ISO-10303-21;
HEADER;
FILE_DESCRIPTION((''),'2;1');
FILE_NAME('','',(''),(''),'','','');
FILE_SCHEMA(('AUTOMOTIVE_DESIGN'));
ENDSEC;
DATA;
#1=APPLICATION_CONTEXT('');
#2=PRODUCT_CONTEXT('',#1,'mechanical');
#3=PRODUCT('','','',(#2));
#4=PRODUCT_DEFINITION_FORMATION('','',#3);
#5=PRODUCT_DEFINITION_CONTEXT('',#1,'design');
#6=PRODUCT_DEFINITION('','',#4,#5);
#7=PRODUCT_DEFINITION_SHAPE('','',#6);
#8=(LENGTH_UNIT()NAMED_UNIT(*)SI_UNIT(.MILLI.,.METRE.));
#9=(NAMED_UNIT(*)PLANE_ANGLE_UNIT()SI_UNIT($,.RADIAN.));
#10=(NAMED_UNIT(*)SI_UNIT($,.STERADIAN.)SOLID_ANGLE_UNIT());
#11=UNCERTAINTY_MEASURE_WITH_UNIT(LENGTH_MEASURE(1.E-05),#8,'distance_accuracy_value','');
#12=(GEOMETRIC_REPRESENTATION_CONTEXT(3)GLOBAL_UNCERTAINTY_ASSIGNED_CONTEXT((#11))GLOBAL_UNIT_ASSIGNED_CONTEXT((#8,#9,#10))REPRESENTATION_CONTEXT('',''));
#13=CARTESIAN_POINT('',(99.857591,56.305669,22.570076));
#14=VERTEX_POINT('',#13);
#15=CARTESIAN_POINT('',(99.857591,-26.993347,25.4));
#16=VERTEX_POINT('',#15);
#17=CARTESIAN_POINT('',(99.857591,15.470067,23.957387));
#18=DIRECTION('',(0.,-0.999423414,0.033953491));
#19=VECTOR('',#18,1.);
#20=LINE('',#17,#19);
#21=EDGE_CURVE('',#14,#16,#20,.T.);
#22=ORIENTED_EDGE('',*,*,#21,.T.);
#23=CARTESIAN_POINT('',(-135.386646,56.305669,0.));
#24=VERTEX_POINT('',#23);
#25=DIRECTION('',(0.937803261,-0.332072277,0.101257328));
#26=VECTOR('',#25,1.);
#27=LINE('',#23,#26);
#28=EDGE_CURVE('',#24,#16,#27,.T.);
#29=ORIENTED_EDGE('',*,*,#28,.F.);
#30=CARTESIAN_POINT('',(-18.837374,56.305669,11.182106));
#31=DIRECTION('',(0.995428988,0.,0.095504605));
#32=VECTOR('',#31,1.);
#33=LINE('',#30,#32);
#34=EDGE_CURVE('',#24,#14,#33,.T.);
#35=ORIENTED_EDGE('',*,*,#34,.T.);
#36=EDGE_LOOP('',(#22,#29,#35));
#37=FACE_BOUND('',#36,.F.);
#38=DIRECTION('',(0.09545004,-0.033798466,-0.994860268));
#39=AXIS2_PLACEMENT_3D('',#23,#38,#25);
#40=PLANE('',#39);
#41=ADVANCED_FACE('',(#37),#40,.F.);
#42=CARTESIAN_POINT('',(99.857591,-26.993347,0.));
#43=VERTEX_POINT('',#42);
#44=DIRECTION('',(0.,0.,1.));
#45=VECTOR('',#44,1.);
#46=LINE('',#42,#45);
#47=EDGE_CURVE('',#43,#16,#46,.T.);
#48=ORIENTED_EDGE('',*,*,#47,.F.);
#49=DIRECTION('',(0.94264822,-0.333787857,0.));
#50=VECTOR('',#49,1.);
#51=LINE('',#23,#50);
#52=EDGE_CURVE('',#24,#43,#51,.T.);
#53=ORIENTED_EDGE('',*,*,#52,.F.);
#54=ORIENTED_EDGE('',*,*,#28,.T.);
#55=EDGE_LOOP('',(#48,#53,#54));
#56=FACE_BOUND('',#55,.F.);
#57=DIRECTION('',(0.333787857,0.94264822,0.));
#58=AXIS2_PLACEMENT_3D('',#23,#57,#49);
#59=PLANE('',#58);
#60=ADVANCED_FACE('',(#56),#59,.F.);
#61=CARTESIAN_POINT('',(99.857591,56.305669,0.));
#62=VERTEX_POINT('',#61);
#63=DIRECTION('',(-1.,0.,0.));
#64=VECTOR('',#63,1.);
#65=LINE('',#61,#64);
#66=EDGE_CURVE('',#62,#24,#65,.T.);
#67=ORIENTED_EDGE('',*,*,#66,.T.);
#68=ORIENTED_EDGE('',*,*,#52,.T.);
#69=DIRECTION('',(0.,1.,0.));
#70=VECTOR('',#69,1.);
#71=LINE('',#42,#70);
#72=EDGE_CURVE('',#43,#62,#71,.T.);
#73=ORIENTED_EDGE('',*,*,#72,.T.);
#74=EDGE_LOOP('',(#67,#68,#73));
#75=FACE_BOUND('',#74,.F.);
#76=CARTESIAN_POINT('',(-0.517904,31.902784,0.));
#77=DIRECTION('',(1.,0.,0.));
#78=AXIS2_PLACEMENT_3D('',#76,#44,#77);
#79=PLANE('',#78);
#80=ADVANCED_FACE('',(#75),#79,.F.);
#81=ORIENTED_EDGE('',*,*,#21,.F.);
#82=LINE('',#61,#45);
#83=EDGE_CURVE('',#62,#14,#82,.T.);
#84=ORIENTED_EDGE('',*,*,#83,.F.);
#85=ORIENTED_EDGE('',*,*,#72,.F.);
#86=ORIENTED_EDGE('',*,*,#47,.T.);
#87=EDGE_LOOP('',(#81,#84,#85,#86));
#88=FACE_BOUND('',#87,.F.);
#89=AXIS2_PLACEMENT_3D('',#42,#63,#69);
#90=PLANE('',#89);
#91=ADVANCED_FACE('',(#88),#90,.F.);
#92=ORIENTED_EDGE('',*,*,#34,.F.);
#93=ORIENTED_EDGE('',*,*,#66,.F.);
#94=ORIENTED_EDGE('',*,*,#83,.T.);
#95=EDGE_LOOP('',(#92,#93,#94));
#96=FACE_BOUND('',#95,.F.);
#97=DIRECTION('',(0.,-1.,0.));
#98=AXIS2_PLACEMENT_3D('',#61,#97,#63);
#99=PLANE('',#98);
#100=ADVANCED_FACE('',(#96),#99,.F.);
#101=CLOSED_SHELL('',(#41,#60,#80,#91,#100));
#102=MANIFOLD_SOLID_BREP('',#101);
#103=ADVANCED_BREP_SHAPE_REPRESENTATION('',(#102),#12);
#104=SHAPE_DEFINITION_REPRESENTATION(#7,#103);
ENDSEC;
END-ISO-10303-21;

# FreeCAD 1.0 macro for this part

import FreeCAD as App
import Part
import Sketcher

V = App.Vector
Q = App.Units.Quantity


def add_polygon(sketch, points):
    """Adds a closed chain of lines whose ends are joined by coincident constraints."""
    first, n = sketch.GeometryCount, len(points)
    for a, b in zip(points, points[1:] + points[:1]):
        sketch.addGeometry(Part.LineSegment(App.Vector(*a, 0), App.Vector(*b, 0)), False)
    for i in range(n):
        sketch.addConstraint(Sketcher.Constraint("Coincident", first + i, 2, first + (i + 1) % n, 1))

doc = App.newDocument("Part")
body = doc.addObject("PartDesign::Body", "Body")

sketch1 = body.newObject("Sketcher::SketchObject", "Sketch")
sketch1.AttachmentSupport = (doc.getObject("XY_Plane"), [""])
sketch1.MapMode = "FlatFace"
add_polygon(sketch1, [(99.857591, 56.305669), (-135.386646, 56.305669), (99.857591, -26.993347)])
sketch1.addConstraint(Sketcher.Constraint("Horizontal", 0))
sketch1.addConstraint(Sketcher.Constraint("Vertical", 2))
sketch1.addConstraint(Sketcher.Constraint("Distance", 1, Q("249.556761 mm")))
sketch1.addConstraint(Sketcher.Constraint("DistanceX", 0, 2, 0, 1, Q("235.244237 mm")))
sketch1.addConstraint(Sketcher.Constraint("DistanceY", -1, 1, 0, 2, Q("56.305669 mm")))
sketch1.addConstraint(Sketcher.Constraint("DistanceX", -1, 1, 1, 2, Q("99.857591 mm")))
pad1 = body.newObject("PartDesign::Pad", "Pad")
pad1.Profile = sketch1
pad1.Length = Q("1 in")

sketch2 = body.newObject("Sketcher::SketchObject", "Sketch001")
sketch2.Placement = App.Placement(V(2.632258, 7.433743, 0), App.Rotation(V(0.94264822, -0.333787857, 0), V(0, 0, 1), V(-0.333787857, -0.94264822, 0), "ZXY"))
add_polygon(sketch2, [(-146.416129, 25.4), (-146.416129, 0), (103.140632, 25.4)])
sketch2.addConstraint(Sketcher.Constraint("Vertical", 0))
sketch2.addConstraint(Sketcher.Constraint("Horizontal", 2))
sketch2.addConstraint(Sketcher.Constraint("PointOnObject", 0, 2, -1))
sketch2.addConstraint(Sketcher.Constraint("DistanceY", 0, 2, 0, 1, Q("1 in")))
sketch2.addConstraint(Sketcher.Constraint("DistanceX", 2, 2, 2, 1, Q("249.556761 mm")))
sketch2.addConstraint(Sketcher.Constraint("DistanceX", 0, 2, -1, 1, Q("146.416129 mm")))
pocket1 = body.newObject("PartDesign::Pocket", "Pocket")
pocket1.Profile = sketch2
pocket1.Length = Q("4.61 in")

doc.recompute()
